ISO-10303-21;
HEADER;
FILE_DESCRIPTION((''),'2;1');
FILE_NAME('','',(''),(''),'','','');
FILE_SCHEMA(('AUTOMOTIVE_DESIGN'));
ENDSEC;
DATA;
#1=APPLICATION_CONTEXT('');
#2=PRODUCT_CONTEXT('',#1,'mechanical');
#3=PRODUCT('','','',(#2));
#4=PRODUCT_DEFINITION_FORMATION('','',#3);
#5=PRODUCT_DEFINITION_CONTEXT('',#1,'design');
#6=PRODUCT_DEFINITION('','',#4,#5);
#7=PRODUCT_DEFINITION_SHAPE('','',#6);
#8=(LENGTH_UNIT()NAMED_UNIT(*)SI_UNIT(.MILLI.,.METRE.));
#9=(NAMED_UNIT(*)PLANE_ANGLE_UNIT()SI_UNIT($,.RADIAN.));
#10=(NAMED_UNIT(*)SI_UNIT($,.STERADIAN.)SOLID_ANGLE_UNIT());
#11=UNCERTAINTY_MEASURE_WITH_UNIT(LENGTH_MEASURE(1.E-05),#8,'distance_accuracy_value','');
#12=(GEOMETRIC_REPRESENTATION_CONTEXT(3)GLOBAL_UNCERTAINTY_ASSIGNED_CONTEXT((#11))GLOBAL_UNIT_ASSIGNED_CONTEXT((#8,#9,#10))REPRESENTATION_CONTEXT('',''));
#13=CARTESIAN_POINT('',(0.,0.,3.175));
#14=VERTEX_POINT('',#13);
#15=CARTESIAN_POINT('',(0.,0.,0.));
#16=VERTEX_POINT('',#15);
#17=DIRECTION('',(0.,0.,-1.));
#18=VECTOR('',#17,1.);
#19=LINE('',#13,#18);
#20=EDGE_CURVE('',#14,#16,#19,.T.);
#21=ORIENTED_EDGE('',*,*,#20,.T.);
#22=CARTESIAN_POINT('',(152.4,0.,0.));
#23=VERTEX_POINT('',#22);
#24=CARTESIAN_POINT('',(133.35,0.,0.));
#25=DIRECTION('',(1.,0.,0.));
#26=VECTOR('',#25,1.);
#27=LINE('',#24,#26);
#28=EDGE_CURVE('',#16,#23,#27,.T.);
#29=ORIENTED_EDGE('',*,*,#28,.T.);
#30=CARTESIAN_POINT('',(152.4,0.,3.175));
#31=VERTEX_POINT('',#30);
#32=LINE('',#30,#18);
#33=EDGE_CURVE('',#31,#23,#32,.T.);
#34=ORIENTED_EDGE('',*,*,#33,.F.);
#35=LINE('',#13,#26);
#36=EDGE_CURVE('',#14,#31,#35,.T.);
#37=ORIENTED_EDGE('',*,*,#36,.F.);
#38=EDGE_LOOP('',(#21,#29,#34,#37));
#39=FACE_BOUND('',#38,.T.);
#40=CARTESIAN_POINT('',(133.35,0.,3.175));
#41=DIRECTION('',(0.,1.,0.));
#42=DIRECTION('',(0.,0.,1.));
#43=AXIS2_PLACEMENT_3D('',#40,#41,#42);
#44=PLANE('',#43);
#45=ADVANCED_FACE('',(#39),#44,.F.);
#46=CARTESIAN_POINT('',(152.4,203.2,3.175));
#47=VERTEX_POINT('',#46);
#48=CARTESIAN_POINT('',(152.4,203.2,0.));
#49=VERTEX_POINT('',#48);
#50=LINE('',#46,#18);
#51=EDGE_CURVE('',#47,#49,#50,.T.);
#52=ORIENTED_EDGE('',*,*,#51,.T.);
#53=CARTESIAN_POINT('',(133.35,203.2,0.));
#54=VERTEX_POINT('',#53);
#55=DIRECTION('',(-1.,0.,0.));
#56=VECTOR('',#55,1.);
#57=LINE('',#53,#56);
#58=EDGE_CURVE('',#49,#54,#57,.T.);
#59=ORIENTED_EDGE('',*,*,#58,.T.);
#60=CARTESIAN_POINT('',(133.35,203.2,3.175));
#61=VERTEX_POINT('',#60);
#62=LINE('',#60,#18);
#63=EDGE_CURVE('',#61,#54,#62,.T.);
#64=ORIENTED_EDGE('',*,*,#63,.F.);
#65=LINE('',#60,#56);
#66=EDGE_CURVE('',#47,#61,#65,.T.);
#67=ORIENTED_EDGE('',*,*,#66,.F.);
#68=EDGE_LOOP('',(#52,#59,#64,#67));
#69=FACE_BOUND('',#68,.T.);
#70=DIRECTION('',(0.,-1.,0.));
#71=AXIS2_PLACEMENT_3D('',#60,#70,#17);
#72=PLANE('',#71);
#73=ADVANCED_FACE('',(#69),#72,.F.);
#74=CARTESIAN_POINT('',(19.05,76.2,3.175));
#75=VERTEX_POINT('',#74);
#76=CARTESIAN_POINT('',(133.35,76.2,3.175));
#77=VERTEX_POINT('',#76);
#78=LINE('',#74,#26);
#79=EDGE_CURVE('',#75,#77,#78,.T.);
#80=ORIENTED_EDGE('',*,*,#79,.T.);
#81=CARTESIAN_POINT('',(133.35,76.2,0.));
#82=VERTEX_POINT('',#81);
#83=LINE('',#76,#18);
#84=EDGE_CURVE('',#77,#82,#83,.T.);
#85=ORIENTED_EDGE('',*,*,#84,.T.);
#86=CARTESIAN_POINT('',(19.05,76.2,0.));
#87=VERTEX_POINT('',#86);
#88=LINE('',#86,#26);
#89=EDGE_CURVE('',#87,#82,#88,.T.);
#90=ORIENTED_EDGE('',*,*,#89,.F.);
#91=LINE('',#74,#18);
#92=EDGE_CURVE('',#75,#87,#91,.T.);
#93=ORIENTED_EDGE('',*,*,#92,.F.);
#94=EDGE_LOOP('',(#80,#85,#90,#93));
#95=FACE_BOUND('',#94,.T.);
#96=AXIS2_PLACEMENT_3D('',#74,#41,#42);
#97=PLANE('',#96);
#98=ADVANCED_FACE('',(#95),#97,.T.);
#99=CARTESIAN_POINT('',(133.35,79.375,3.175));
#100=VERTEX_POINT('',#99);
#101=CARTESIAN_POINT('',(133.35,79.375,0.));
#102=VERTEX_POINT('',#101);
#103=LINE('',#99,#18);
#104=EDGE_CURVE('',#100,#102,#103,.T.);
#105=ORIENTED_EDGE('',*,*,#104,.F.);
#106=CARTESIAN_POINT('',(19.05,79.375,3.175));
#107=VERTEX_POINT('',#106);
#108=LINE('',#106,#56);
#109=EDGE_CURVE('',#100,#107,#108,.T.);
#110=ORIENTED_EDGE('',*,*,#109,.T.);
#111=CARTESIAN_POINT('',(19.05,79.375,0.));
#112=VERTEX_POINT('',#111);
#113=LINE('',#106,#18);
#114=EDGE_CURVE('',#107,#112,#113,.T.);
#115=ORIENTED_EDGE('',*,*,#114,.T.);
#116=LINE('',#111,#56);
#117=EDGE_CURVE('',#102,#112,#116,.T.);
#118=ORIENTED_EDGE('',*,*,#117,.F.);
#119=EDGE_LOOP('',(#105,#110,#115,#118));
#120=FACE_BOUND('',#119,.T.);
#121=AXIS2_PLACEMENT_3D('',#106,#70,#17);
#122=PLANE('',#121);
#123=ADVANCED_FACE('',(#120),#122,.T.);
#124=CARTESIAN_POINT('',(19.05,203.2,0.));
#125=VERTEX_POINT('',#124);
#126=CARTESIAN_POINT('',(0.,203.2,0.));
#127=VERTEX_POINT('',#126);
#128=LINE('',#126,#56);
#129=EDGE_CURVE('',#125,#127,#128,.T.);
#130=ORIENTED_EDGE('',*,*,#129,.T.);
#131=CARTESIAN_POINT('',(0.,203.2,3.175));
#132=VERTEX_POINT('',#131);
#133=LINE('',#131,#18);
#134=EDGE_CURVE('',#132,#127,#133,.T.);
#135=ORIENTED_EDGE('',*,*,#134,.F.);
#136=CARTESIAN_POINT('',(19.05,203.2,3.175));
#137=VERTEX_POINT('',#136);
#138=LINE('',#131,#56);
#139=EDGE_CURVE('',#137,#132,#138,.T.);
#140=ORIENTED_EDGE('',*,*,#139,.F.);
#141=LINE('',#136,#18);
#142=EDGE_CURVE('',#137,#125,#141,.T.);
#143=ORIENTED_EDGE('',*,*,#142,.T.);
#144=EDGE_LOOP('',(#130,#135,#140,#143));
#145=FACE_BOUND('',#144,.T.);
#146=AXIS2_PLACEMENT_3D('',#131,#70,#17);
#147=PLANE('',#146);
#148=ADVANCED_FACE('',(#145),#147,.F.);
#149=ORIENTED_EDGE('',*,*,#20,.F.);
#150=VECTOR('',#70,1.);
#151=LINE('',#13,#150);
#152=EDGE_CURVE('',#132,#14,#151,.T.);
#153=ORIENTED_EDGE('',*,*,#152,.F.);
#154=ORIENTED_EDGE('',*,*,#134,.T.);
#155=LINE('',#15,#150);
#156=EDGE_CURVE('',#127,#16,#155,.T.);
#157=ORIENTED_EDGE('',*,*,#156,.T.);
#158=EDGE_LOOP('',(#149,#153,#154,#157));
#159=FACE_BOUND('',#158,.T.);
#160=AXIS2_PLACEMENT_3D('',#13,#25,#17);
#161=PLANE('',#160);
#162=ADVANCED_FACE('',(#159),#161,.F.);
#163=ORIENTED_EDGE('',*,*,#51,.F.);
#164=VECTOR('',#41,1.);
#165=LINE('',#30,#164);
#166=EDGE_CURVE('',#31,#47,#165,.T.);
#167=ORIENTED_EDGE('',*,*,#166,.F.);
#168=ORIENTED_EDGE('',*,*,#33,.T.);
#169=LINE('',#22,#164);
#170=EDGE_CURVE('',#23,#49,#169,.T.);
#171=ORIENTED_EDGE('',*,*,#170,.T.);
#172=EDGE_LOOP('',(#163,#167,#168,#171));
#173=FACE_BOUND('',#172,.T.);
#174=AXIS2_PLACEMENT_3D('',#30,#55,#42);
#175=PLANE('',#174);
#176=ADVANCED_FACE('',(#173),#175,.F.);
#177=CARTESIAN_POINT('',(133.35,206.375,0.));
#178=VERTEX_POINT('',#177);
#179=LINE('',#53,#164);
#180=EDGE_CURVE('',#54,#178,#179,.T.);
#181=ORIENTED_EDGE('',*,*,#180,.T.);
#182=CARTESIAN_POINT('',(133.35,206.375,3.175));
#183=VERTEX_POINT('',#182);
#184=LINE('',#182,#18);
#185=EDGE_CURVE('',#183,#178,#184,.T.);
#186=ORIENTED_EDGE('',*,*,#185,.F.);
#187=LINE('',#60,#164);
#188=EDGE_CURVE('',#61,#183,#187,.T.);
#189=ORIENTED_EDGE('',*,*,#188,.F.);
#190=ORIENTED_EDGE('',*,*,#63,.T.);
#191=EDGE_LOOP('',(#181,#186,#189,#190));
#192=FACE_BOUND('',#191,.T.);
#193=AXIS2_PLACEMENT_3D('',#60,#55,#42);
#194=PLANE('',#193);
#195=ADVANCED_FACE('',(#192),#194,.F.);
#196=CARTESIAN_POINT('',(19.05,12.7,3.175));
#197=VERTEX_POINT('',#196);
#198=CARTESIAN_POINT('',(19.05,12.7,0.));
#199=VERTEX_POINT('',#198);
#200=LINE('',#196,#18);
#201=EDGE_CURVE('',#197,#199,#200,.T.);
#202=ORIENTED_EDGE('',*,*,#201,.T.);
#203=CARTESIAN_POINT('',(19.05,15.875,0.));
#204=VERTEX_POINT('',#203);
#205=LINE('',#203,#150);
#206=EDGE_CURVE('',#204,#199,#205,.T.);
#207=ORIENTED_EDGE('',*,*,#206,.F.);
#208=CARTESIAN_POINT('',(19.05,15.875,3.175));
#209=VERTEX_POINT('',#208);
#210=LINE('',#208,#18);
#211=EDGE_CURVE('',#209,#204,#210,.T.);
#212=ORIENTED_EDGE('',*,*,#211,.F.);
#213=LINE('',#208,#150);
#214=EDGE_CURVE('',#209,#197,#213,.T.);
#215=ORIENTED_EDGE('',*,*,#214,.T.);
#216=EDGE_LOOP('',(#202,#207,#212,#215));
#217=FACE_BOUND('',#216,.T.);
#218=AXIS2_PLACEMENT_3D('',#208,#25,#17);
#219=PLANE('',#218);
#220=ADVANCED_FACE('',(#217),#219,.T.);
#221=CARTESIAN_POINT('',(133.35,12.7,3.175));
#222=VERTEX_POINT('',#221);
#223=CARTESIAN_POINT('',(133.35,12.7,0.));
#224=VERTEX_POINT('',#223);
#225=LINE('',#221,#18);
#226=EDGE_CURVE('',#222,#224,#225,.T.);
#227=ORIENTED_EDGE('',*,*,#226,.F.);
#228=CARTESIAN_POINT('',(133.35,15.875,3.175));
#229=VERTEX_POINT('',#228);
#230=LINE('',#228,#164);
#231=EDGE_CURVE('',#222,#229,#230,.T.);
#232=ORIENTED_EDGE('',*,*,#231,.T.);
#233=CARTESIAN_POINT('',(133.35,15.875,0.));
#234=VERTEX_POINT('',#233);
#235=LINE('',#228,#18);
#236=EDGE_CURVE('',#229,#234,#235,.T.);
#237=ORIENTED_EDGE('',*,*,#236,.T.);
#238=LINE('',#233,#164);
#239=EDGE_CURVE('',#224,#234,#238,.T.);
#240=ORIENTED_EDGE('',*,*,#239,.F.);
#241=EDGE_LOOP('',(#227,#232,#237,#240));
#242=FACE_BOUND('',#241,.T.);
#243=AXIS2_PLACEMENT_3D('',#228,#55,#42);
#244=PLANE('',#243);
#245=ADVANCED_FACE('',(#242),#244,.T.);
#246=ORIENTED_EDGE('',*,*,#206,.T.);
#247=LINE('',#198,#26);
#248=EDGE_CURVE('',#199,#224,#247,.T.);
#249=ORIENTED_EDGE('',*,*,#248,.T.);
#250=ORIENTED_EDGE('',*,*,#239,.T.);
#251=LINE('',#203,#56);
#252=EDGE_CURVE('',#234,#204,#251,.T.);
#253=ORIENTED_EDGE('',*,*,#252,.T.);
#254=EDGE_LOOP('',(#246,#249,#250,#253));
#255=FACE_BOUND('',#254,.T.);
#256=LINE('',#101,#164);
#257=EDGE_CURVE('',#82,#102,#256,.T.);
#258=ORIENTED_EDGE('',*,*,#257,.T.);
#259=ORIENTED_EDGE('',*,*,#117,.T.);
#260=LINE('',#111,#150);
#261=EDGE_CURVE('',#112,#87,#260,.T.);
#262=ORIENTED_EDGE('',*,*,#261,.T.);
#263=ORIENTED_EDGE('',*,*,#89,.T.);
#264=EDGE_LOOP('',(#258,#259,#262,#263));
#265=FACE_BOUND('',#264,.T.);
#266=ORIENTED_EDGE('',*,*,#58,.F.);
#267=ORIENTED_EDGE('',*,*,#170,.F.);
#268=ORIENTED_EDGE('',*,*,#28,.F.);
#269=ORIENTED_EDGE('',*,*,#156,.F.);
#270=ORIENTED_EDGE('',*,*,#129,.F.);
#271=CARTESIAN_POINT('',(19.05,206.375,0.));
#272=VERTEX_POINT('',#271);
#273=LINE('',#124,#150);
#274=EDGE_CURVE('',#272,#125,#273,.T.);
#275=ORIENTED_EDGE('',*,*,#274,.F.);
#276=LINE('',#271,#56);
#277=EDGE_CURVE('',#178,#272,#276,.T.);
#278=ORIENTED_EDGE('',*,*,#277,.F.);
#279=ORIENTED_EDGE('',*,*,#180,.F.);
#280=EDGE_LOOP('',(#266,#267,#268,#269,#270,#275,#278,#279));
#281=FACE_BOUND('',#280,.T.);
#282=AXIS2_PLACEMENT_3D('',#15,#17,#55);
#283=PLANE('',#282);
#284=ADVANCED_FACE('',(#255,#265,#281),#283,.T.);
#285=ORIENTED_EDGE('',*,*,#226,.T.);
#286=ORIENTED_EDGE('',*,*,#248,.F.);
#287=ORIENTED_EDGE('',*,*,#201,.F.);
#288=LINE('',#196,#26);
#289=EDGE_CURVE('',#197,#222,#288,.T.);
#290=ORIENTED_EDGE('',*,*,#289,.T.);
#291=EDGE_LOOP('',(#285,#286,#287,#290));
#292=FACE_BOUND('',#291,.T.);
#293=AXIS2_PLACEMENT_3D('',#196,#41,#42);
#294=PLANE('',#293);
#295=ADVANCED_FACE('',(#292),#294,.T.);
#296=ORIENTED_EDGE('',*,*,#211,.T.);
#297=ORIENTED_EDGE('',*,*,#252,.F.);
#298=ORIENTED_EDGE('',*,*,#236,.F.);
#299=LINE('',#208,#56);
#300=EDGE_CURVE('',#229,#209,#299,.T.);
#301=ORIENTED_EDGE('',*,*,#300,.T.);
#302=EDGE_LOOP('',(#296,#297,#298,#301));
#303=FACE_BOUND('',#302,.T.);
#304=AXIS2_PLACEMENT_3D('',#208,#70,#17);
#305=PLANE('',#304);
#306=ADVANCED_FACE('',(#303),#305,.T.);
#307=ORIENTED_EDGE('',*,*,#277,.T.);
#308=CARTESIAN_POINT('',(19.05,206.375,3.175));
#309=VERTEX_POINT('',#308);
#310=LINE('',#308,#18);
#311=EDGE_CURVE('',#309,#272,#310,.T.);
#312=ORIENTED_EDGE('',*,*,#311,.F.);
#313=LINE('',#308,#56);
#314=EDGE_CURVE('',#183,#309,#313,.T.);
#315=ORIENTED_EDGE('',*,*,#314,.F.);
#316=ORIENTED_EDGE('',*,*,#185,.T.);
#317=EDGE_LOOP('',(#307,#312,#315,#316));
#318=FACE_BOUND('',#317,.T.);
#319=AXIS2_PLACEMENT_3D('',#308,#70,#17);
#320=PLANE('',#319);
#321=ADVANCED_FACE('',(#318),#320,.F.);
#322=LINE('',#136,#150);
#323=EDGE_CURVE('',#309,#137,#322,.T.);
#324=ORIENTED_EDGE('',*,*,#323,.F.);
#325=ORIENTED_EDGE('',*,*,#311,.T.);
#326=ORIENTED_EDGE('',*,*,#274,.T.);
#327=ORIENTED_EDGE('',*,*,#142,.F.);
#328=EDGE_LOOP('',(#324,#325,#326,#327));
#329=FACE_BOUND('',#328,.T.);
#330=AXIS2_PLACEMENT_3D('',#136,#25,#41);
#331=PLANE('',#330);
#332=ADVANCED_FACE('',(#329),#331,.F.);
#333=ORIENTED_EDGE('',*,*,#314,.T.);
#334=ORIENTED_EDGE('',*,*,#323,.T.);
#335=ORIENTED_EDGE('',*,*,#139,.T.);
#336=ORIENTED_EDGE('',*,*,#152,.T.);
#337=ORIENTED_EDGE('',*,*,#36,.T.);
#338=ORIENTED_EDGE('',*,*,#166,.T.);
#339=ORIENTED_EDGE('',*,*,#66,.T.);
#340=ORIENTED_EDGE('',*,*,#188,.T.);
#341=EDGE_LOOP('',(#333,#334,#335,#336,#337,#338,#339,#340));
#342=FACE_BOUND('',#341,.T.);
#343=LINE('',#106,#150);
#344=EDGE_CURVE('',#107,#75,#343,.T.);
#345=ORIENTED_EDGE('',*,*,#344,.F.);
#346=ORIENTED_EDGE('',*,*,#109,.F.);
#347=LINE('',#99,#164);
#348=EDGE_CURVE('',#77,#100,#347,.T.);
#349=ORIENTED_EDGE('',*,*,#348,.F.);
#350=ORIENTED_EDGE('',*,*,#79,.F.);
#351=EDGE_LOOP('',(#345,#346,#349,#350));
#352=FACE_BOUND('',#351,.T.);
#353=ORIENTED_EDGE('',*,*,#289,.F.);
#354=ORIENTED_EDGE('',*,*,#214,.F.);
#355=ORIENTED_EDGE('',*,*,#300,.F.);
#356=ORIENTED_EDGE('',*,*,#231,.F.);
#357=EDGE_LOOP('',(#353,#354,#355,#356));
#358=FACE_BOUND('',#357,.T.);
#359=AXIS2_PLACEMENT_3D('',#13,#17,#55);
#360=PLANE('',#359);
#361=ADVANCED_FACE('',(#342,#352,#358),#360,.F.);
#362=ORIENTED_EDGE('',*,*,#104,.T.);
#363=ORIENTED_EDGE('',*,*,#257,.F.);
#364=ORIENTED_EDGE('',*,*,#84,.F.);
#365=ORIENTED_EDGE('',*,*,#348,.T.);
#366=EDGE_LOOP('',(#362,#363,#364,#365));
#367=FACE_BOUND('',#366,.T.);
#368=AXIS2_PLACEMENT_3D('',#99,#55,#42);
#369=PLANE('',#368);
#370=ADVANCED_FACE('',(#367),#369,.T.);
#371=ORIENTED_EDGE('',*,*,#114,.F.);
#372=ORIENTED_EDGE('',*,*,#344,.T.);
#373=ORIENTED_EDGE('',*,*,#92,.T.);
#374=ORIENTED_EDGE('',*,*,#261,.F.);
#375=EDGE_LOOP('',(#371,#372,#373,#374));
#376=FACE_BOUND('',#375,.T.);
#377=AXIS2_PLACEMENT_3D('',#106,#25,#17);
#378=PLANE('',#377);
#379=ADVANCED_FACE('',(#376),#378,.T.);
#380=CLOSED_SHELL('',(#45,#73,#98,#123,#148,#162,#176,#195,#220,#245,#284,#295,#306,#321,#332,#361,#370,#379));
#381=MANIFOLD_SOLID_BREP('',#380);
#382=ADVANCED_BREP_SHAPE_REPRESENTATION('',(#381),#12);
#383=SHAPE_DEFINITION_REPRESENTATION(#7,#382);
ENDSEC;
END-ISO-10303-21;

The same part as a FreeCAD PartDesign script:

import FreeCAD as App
import Part
import Sketcher

V = App.Vector
Q = App.Units.Quantity


def add_polygon(sketch, points):
    """Adds a closed chain of lines whose ends are joined by coincident constraints."""
    first, n = sketch.GeometryCount, len(points)
    for a, b in zip(points, points[1:] + points[:1]):
        sketch.addGeometry(Part.LineSegment(App.Vector(*a, 0), App.Vector(*b, 0)), False)
    for i in range(n):
        sketch.addConstraint(Sketcher.Constraint("Coincident", first + i, 2, first + (i + 1) % n, 1))

doc = App.newDocument("Part")
body = doc.addObject("PartDesign::Body", "Body")

# Sketch on XY plane
sketch1 = body.newObject("Sketcher::SketchObject", "Sketch")
sketch1.AttachmentSupport = (doc.getObject("XY_Plane"), [""])
sketch1.MapMode = "FlatFace"
add_polygon(sketch1, [(152.4, 0), (152.4, 203.2), (133.3, 203.2), (133.3, 206.4), (19.1, 206.4), (19.1, 203.2), (0, 203.2), (0, 0)])  # lines 0-7
add_polygon(sketch1, [(133.3, 12.7), (19.1, 12.7), (19.1, 15.9), (133.3, 15.9)])  # lines 8-11
add_polygon(sketch1, [(133.3, 76.2), (19.1, 76.2), (19.1, 79.4), (133.3, 79.4)])  # lines 12-15
sketch1.addConstraint(Sketcher.Constraint("Vertical", 0))
sketch1.addConstraint(Sketcher.Constraint("Horizontal", 1))
sketch1.addConstraint(Sketcher.Constraint("Vertical", 2))
sketch1.addConstraint(Sketcher.Constraint("Horizontal", 3))
sketch1.addConstraint(Sketcher.Constraint("Vertical", 4))
sketch1.addConstraint(Sketcher.Constraint("Horizontal", 5))
sketch1.addConstraint(Sketcher.Constraint("Vertical", 6))
sketch1.addConstraint(Sketcher.Constraint("Horizontal", 7))
sketch1.addConstraint(Sketcher.Constraint("Horizontal", 8))
sketch1.addConstraint(Sketcher.Constraint("Vertical", 9))
sketch1.addConstraint(Sketcher.Constraint("Horizontal", 10))
sketch1.addConstraint(Sketcher.Constraint("Vertical", 11))
sketch1.addConstraint(Sketcher.Constraint("Horizontal", 12))
sketch1.addConstraint(Sketcher.Constraint("Vertical", 13))
sketch1.addConstraint(Sketcher.Constraint("Horizontal", 14))
sketch1.addConstraint(Sketcher.Constraint("Vertical", 15))
sketch1.addConstraint(Sketcher.Constraint("Coincident", 6, 2, -1, 1))
sketch1.addConstraint(Sketcher.Constraint("Horizontal", 1, 2, 4, 2))
sketch1.addConstraint(Sketcher.Constraint("Vertical", 4, 2, 8, 2))
sketch1.addConstraint(Sketcher.Constraint("Vertical", 2, 2, 10, 2))
sketch1.addConstraint(Sketcher.Constraint("Vertical", 9, 2, 12, 2))
sketch1.addConstraint(Sketcher.Constraint("Vertical", 11, 2, 14, 2))
sketch1.addConstraint(Sketcher.Constraint("Equal", 1, 5))
sketch1.addConstraint(Sketcher.Constraint("Equal", 4, 9))
sketch1.addConstraint(Sketcher.Constraint("Equal", 11, 13))
sketch1.addConstraint(Sketcher.Constraint("DistanceX", 7, 1, 7, 2, Q("6 in")))
sketch1.addConstraint(Sketcher.Constraint("DistanceY", 0, 1, 0, 2, Q("8 in")))
sketch1.addConstraint(Sketcher.Constraint("DistanceX", 3, 2, 3, 1, Q("4.5 in")))
sketch1.addConstraint(Sketcher.Constraint("DistanceY", -1, 1, 12, 2, Q("3 in")))
sketch1.addConstraint(Sketcher.Constraint("DistanceY", -1, 1, 8, 2, Q("0.5 in")))
sketch1.addConstraint(Sketcher.Constraint("DistanceY", 2, 1, 2, 2, Q("0.125 in")))
pad1 = body.newObject("PartDesign::Pad", "Pad")
pad1.Profile = sketch1
pad1.Length = Q("0.125 in")

doc.recompute()
